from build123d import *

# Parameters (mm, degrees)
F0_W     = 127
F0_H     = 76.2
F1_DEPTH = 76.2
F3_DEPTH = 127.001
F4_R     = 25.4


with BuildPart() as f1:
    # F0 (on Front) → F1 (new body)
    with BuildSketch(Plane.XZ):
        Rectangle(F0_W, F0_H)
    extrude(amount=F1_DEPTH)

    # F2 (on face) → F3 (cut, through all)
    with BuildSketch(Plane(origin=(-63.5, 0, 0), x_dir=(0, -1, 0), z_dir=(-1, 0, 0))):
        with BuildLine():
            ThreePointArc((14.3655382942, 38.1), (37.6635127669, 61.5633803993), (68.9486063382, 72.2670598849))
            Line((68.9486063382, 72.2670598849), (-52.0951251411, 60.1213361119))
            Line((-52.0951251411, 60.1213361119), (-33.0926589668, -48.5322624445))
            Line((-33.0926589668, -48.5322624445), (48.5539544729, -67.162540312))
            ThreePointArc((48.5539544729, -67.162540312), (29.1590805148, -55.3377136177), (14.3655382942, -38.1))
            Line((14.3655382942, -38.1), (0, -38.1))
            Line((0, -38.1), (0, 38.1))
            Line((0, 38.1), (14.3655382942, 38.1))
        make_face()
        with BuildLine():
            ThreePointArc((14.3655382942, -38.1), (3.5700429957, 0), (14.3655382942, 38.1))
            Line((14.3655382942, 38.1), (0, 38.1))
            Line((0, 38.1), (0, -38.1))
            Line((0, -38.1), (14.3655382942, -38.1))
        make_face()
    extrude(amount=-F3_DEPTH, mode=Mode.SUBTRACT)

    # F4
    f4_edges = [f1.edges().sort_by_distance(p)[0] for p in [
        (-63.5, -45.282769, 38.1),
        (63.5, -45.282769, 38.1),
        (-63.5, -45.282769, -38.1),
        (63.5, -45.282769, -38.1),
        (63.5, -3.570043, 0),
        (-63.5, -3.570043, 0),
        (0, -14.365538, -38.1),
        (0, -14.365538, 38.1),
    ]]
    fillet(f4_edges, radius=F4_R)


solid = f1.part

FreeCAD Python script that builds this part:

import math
import FreeCAD as App
import Part
import Sketcher
from FreeCAD import Vector
Q = App.Units.Quantity


def edges_at(feature, points):
    """Names of the edges that pass closest to the given points."""
    edges = feature.Shape.Edges
    near = lambda p: min(range(len(edges)), key=lambda i: edges[i].distToShape(Part.Vertex(*p))[0])
    return sorted({f"Edge{near(p) + 1}" for p in points})


def add_polygon(sketch, points):
    """Adds a closed chain of lines whose ends are joined by coincident constraints."""
    first, n = sketch.GeometryCount, len(points)
    for a, b in zip(points, points[1:] + points[:1]):
        sketch.addGeometry(Part.LineSegment(App.Vector(*a, 0), App.Vector(*b, 0)), False)
    for i in range(n):
        sketch.addConstraint(Sketcher.Constraint("Coincident", first + i, 2, first + (i + 1) % n, 1))

doc = App.newDocument("Part")
body = doc.addObject("PartDesign::Body", "Body")

# Sketch on XZ plane
sketch1 = body.newObject("Sketcher::SketchObject", "Sketch")
sketch1.AttachmentSupport = (doc.getObject("XZ_Plane"), [""])
sketch1.MapMode = "FlatFace"
add_polygon(sketch1, [(-64, 38), (-64, -38), (64, -38), (64, 38)])  # lines 0-3
sketch1.addConstraint(Sketcher.Constraint("Vertical", 0))
sketch1.addConstraint(Sketcher.Constraint("Horizontal", 1))
sketch1.addConstraint(Sketcher.Constraint("Vertical", 2))
sketch1.addConstraint(Sketcher.Constraint("Horizontal", 3))
sketch1.addConstraint(Sketcher.Constraint("Symmetric", 0, 2, 2, 2, -1, 1))
sketch1.addConstraint(Sketcher.Constraint("DistanceX", 1, 1, 1, 2, Q("5 in")))
sketch1.addConstraint(Sketcher.Constraint("DistanceY", 0, 2, 0, 1, Q("3 in")))
pad1 = body.newObject("PartDesign::Pad", "Pad")
pad1.Profile = sketch1
pad1.Length = Q("3 in")

# Sketch on YZ plane
sketch2 = body.newObject("Sketcher::SketchObject", "Sketch001")
sketch2.AttachmentSupport = (doc.getObject("YZ_Plane"), [""])
sketch2.MapMode = "FlatFace"
sketch2.AttachmentOffset = App.Placement(Vector(0, 0, -2.5 * 25.4), App.Rotation())
sketch2.addGeometry(Part.ArcOfCircle(Part.Circle(Vector(-76, 0, 0), Vector(0, 0, 1), 73), math.radians(32), math.radians(84)), False)
sketch2.addGeometry(Part.LineSegment(Vector(-69, 72, 0), Vector(52, 60, 0)), False)
sketch2.addGeometry(Part.LineSegment(Vector(52, 60, 0), Vector(33, -49, 0)), False)
sketch2.addGeometry(Part.LineSegment(Vector(33, -49, 0), Vector(-49, -67, 0)), False)
sketch2.addGeometry(Part.ArcOfCircle(Part.Circle(Vector(-76, 0, 0), Vector(0, 0, 1), 73), math.radians(-68), math.radians(32)), False)
sketch2.addConstraint(Sketcher.Constraint("Tangent", 0, 2, 1, 1))
sketch2.addConstraint(Sketcher.Constraint("Coincident", 1, 2, 2, 1))
sketch2.addConstraint(Sketcher.Constraint("Coincident", 2, 2, 3, 1))
sketch2.addConstraint(Sketcher.Constraint("Coincident", 3, 2, 4, 1))
sketch2.addConstraint(Sketcher.Constraint("Tangent", 4, 2, 0, 1))
sketch2.addConstraint(Sketcher.Constraint("Equal", 0, 4))
sketch2.addConstraint(Sketcher.Constraint("PointOnObject", 0, 3, -1))
sketch2.addConstraint(Sketcher.Constraint("DistanceX", 0, 3, -1, 1, Q("3 in")))
sketch2.addConstraint(Sketcher.Constraint("DistanceY", -1, 1, 4, 2, Q("1.5 in")))
sketch2.addConstraint(Sketcher.Constraint("Radius", 0, 72.629957))
sketch2.addConstraint(Sketcher.Constraint("DistanceY", 2, 2, 1, 2, 108.653599))
sketch2.addConstraint(Sketcher.Constraint("DistanceY", 3, 2, 0, 2, 139.4296))
sketch2.addConstraint(Sketcher.Constraint("Distance", 3, 83.745189))
sketch2.addConstraint(Sketcher.Constraint("DistanceY", -1, 1, 0, 2, 72.26706))
sketch2.addConstraint(Sketcher.Constraint("DistanceX", -1, 1, 2, 2, 33.092659))
pocket1 = body.newObject("PartDesign::Pocket", "Pocket")
pocket1.Profile = sketch2
pocket1.Type = "ThroughAll"
pocket1.Reversed = True
doc.recompute()

fillet = body.newObject("PartDesign::Fillet", "Fillet")
fillet.Base = (pocket1, edges_at(pocket1, [
    (-63.5, -45.283, 38.1),
    (63.5, -45.283, 38.1),
    (-63.5, -45.283, -38.1),
    (63.5, -45.283, -38.1),
    (63.5, -3.57, 0),
    (-63.5, -3.57, 0),
    (0, -14.366, -38.1),
    (0, -14.366, 38.1),
]))
fillet.Radius = Q("1 in")

doc.recompute()
